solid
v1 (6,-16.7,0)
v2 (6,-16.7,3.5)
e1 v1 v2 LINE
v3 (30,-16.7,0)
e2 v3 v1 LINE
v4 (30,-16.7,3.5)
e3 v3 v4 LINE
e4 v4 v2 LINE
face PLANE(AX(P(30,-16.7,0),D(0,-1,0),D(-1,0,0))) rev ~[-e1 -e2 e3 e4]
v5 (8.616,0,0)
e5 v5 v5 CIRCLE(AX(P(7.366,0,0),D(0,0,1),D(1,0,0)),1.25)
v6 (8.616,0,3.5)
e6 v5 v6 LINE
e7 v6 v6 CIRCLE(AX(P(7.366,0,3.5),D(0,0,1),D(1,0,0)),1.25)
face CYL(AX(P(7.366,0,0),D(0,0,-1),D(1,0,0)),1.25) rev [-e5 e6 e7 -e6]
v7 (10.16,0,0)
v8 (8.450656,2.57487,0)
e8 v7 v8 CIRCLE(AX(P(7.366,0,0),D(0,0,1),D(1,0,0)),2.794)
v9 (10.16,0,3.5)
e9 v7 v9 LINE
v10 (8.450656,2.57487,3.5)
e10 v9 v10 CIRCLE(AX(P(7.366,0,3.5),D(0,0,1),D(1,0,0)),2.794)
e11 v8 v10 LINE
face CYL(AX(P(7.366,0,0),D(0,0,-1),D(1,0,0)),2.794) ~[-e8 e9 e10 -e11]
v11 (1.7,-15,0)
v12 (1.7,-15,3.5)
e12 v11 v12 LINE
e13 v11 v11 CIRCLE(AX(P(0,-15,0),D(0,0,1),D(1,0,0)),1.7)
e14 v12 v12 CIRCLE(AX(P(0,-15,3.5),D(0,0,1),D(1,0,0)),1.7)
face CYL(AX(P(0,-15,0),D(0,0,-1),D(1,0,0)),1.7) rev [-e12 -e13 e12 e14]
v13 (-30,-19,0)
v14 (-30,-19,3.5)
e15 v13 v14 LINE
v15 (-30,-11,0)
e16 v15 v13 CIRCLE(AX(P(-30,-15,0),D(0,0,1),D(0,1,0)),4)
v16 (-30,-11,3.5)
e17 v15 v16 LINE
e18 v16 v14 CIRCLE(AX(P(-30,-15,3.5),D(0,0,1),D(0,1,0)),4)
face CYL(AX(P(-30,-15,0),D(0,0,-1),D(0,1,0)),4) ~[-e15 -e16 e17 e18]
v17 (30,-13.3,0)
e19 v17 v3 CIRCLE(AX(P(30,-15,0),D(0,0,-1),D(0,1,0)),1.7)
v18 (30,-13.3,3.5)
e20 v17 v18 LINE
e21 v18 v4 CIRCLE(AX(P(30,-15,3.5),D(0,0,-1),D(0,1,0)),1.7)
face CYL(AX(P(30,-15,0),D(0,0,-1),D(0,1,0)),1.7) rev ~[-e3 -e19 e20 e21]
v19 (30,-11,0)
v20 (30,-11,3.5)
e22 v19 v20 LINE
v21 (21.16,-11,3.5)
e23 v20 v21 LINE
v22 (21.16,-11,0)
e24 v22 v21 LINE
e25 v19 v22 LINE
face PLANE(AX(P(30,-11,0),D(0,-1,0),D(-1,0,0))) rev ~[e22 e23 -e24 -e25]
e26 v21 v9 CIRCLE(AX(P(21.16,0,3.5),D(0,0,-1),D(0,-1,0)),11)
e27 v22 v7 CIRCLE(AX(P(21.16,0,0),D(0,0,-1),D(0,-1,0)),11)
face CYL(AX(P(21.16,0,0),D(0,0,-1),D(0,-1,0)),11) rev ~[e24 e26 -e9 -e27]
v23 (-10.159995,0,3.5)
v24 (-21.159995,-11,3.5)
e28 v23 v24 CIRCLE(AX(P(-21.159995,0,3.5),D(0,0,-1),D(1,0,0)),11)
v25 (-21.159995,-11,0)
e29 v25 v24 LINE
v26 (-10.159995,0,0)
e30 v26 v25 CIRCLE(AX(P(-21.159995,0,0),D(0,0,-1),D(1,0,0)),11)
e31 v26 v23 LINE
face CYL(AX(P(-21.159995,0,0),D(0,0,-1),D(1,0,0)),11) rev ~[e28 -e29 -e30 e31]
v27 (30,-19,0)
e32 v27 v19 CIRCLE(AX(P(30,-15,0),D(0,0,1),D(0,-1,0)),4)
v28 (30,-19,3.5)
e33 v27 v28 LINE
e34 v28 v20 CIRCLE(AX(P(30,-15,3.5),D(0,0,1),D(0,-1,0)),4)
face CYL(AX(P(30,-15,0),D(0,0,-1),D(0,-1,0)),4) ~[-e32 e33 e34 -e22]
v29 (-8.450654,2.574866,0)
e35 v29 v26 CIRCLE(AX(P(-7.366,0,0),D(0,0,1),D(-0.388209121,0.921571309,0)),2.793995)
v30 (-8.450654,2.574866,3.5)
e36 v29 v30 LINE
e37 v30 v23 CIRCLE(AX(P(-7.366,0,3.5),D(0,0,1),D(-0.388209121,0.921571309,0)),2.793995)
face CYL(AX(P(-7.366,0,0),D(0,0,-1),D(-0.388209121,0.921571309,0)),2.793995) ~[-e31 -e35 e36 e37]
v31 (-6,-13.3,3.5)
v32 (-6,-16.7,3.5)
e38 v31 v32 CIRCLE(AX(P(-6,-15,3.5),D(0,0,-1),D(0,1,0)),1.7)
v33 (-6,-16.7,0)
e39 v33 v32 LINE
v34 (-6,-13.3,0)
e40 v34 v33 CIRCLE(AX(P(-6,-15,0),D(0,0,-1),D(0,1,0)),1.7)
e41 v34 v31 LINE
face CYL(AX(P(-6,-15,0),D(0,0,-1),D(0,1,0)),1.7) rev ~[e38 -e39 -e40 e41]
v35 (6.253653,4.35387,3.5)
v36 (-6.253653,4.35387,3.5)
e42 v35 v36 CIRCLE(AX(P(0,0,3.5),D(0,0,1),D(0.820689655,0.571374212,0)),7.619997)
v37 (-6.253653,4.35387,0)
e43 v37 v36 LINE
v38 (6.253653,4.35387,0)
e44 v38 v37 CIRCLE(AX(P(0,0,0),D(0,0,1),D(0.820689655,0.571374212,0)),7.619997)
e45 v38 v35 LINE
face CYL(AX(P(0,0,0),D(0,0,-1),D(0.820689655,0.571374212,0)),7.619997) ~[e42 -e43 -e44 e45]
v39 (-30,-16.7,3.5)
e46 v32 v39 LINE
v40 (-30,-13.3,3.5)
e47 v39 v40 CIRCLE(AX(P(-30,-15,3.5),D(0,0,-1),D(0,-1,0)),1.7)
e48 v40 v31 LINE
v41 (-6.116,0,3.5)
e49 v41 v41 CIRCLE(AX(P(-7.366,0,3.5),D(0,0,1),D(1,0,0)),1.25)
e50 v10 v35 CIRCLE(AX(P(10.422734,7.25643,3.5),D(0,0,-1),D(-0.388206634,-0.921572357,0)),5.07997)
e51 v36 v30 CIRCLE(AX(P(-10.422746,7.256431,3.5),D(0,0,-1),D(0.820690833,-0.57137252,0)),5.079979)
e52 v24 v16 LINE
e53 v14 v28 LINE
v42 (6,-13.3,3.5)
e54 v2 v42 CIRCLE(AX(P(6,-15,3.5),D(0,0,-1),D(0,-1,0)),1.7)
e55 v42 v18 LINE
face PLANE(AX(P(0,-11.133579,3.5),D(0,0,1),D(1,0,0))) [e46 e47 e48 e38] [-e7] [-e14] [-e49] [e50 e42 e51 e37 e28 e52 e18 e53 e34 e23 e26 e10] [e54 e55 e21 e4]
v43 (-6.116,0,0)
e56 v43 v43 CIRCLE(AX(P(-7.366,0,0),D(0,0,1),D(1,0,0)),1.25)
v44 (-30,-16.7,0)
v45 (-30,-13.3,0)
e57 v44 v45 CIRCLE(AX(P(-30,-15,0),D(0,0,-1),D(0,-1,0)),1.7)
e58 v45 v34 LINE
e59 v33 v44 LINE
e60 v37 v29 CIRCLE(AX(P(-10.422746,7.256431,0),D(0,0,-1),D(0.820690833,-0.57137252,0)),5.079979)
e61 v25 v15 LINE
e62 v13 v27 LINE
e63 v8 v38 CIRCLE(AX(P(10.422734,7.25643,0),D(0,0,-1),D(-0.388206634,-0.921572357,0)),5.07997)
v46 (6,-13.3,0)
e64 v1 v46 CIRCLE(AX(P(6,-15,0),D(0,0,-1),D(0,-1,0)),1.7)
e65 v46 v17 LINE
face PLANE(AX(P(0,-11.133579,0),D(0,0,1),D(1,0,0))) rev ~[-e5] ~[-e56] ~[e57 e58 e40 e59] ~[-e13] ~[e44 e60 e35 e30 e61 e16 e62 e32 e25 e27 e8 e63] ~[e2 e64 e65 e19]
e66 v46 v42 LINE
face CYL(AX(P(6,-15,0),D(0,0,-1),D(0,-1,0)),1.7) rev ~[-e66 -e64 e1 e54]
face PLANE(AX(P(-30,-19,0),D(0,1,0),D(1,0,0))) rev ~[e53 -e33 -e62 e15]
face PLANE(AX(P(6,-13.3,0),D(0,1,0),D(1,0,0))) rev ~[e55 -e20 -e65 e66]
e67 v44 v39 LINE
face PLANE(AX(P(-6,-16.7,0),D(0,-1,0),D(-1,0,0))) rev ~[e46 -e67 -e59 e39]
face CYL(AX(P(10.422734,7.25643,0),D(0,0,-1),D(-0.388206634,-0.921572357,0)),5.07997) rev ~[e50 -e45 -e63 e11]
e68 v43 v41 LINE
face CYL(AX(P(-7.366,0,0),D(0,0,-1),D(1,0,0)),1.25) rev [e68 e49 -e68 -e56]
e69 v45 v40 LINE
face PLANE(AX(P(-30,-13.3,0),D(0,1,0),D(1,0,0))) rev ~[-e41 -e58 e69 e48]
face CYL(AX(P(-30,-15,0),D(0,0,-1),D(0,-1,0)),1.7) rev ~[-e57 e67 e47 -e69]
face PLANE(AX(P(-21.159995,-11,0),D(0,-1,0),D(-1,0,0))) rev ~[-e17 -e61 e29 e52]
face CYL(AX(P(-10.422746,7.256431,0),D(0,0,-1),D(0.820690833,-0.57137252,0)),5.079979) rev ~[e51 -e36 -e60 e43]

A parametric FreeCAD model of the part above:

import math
import FreeCAD as App
import Part
import Sketcher

V = App.Vector

doc = App.newDocument("Part")
body = doc.addObject("PartDesign::Body", "Body")

sketch1 = doc.addObject("Sketcher::SketchObject", "Sketch")
body.addObject(sketch1)
sketch1.AttachmentSupport = (doc.XY_Plane, [""])
sketch1.MapMode = "FlatFace"
sketch1.addGeometry([
    Part.LineSegment(V(-30, -19, 0), V(30, -19, 0)),
    Part.ArcOfCircle(Part.Circle(V(30, -15, 0), V(0, 0, 1), 4), math.radians(-90), math.radians(90)),
    Part.LineSegment(V(30, -11, 0), V(21.2, -11, 0)),
    Part.ArcOfCircle(Part.Circle(V(21.2, 0, 0), V(0, 0, 1), 11), math.radians(180), math.radians(270)),
    Part.ArcOfCircle(Part.Circle(V(7.4, 0, 0), V(0, 0, 1), 2.8), math.radians(0), math.radians(67)),
    Part.ArcOfCircle(Part.Circle(V(10.4, 7.3, 0), V(0, 0, 1), 5.1), math.radians(-145), math.radians(-113)),
    Part.ArcOfCircle(Part.Circle(V(0, 0, 0), V(0, 0, 1), 7.6), math.radians(35), math.radians(145)),
    Part.ArcOfCircle(Part.Circle(V(-10.4, 7.3, 0), V(0, 0, 1), 5.1), math.radians(-67), math.radians(-35)),
    Part.ArcOfCircle(Part.Circle(V(-7.4, 0, 0), V(0, 0, 1), 2.8), math.radians(113), math.radians(180)),
    Part.ArcOfCircle(Part.Circle(V(-21.2, 0, 0), V(0, 0, 1), 11), math.radians(-90), math.radians(0)),
    Part.LineSegment(V(-21.2, -11, 0), V(-30, -11, 0)),
    Part.ArcOfCircle(Part.Circle(V(-30, -15, 0), V(0, 0, 1), 4), math.radians(90), math.radians(270)),
    Part.ArcOfCircle(Part.Circle(V(-30, -15, 0), V(0, 0, 1), 1.7), math.radians(90), math.radians(270)),
    Part.LineSegment(V(-30, -13.3, 0), V(-6, -13.3, 0)),
    Part.ArcOfCircle(Part.Circle(V(-6, -15, 0), V(0, 0, 1), 1.7), math.radians(-90), math.radians(90)),
    Part.LineSegment(V(-6, -16.7, 0), V(-30, -16.7, 0)),
    Part.Circle(V(0, -15, 0), V(0, 0, 1), 1.7),
    Part.ArcOfCircle(Part.Circle(V(30, -15, 0), V(0, 0, 1), 1.7), math.radians(-90), math.radians(90)),
    Part.LineSegment(V(30, -16.7, 0), V(6, -16.7, 0)),
    Part.ArcOfCircle(Part.Circle(V(6, -15, 0), V(0, 0, 1), 1.7), math.radians(90), math.radians(270)),
    Part.LineSegment(V(6, -13.3, 0), V(30, -13.3, 0)),
    Part.Circle(V(-7.4, 0, 0), V(0, 0, 1), 1.2),
    Part.Circle(V(7.4, 0, 0), V(0, 0, 1), 1.2),
], False)
sketch1.addConstraint([
    Sketcher.Constraint("Tangent", 0, 2, 1, 1),
    Sketcher.Constraint("Tangent", 1, 2, 2, 1),
    Sketcher.Constraint("Tangent", 2, 2, 3, 2),
    Sketcher.Constraint("Tangent", 3, 1, 4, 1),
    Sketcher.Constraint("Coincident", 4, 2, 5, 2),
    Sketcher.Constraint("Tangent", 5, 1, 6, 1),
    Sketcher.Constraint("Coincident", 6, 2, 7, 2),
    Sketcher.Constraint("Tangent", 7, 1, 8, 1),
    Sketcher.Constraint("Tangent", 8, 2, 9, 2),
    Sketcher.Constraint("Tangent", 9, 1, 10, 1),
    Sketcher.Constraint("Tangent", 10, 2, 11, 1),
    Sketcher.Constraint("Tangent", 11, 2, 0, 1),
    Sketcher.Constraint("Tangent", 12, 1, 13, 1),
    Sketcher.Constraint("Tangent", 13, 2, 14, 2),
    Sketcher.Constraint("Tangent", 14, 1, 15, 1),
    Sketcher.Constraint("Tangent", 15, 2, 12, 2),
    Sketcher.Constraint("Tangent", 17, 1, 18, 1),
    Sketcher.Constraint("Tangent", 18, 2, 19, 2),
    Sketcher.Constraint("Tangent", 19, 1, 20, 1),
    Sketcher.Constraint("Tangent", 20, 2, 17, 2),
    Sketcher.Constraint("Horizontal", 0),
    Sketcher.Constraint("Horizontal", 2),
    Sketcher.Constraint("Horizontal", 10),
    Sketcher.Constraint("Horizontal", 13),
    Sketcher.Constraint("Horizontal", 15),
    Sketcher.Constraint("Horizontal", 18),
    Sketcher.Constraint("Horizontal", 20),
    Sketcher.Constraint("Coincident", 6, 3, -1, 1),
    Sketcher.Constraint("Coincident", 12, 3, 11, 3),
    Sketcher.Constraint("Coincident", 17, 3, 1, 3),
    Sketcher.Constraint("Coincident", 21, 3, 8, 3),
    Sketcher.Constraint("Coincident", 22, 3, 4, 3),
    Sketcher.Constraint("Equal", 3, 9),
    Sketcher.Constraint("Equal", 1, 11),
    Sketcher.Constraint("Equal", 14, 16),
    Sketcher.Constraint("Equal", 16, 17),
    Sketcher.Constraint("Equal", 21, 22),
    Sketcher.Constraint("Symmetric", 4, 3, 8, 3, -1, 1),
    Sketcher.Constraint("Symmetric", 3, 3, 9, 3, -1, 1),
    Sketcher.Constraint("Symmetric", 4, 2, 7, 1, -2),
    Sketcher.Constraint("PointOnObject", 16, 3, -2),
    Sketcher.Constraint("Horizontal", 5, 3, 7, 3),
    Sketcher.Constraint("Horizontal", 14, 3, 16, 3),
    Sketcher.Constraint("Horizontal", 5, 1, 6, 2),
    Sketcher.Constraint("Equal", 15, 18),
    Sketcher.Constraint("Radius", 1, 4.0),
    Sketcher.Constraint("Radius", 3, 11.0),
    Sketcher.Constraint("Diameter", 16, 3.4),
    Sketcher.Constraint("Diameter", 21, 2.5),
    Sketcher.Constraint("DistanceX", 0, 1, 0, 2, 60.0),
    Sketcher.Constraint("DistanceX", 13, 1, 13, 2, 24.0),
    Sketcher.Constraint("DistanceX", -1, 1, 1, 3, 30.0),
    Sketcher.Constraint("Radius", 4, 2.794),
    Sketcher.Constraint("DistanceX", 2, 2, 2, 1, 8.84),
    Sketcher.Constraint("Radius", 5, 5.07997),
    Sketcher.Constraint("Radius", 6, 7.619997),
])
pad1 = doc.addObject("PartDesign::Pad", "Pad")
body.addObject(pad1)
pad1.Profile = sketch1
pad1.Length = 3.5

doc.recompute()
